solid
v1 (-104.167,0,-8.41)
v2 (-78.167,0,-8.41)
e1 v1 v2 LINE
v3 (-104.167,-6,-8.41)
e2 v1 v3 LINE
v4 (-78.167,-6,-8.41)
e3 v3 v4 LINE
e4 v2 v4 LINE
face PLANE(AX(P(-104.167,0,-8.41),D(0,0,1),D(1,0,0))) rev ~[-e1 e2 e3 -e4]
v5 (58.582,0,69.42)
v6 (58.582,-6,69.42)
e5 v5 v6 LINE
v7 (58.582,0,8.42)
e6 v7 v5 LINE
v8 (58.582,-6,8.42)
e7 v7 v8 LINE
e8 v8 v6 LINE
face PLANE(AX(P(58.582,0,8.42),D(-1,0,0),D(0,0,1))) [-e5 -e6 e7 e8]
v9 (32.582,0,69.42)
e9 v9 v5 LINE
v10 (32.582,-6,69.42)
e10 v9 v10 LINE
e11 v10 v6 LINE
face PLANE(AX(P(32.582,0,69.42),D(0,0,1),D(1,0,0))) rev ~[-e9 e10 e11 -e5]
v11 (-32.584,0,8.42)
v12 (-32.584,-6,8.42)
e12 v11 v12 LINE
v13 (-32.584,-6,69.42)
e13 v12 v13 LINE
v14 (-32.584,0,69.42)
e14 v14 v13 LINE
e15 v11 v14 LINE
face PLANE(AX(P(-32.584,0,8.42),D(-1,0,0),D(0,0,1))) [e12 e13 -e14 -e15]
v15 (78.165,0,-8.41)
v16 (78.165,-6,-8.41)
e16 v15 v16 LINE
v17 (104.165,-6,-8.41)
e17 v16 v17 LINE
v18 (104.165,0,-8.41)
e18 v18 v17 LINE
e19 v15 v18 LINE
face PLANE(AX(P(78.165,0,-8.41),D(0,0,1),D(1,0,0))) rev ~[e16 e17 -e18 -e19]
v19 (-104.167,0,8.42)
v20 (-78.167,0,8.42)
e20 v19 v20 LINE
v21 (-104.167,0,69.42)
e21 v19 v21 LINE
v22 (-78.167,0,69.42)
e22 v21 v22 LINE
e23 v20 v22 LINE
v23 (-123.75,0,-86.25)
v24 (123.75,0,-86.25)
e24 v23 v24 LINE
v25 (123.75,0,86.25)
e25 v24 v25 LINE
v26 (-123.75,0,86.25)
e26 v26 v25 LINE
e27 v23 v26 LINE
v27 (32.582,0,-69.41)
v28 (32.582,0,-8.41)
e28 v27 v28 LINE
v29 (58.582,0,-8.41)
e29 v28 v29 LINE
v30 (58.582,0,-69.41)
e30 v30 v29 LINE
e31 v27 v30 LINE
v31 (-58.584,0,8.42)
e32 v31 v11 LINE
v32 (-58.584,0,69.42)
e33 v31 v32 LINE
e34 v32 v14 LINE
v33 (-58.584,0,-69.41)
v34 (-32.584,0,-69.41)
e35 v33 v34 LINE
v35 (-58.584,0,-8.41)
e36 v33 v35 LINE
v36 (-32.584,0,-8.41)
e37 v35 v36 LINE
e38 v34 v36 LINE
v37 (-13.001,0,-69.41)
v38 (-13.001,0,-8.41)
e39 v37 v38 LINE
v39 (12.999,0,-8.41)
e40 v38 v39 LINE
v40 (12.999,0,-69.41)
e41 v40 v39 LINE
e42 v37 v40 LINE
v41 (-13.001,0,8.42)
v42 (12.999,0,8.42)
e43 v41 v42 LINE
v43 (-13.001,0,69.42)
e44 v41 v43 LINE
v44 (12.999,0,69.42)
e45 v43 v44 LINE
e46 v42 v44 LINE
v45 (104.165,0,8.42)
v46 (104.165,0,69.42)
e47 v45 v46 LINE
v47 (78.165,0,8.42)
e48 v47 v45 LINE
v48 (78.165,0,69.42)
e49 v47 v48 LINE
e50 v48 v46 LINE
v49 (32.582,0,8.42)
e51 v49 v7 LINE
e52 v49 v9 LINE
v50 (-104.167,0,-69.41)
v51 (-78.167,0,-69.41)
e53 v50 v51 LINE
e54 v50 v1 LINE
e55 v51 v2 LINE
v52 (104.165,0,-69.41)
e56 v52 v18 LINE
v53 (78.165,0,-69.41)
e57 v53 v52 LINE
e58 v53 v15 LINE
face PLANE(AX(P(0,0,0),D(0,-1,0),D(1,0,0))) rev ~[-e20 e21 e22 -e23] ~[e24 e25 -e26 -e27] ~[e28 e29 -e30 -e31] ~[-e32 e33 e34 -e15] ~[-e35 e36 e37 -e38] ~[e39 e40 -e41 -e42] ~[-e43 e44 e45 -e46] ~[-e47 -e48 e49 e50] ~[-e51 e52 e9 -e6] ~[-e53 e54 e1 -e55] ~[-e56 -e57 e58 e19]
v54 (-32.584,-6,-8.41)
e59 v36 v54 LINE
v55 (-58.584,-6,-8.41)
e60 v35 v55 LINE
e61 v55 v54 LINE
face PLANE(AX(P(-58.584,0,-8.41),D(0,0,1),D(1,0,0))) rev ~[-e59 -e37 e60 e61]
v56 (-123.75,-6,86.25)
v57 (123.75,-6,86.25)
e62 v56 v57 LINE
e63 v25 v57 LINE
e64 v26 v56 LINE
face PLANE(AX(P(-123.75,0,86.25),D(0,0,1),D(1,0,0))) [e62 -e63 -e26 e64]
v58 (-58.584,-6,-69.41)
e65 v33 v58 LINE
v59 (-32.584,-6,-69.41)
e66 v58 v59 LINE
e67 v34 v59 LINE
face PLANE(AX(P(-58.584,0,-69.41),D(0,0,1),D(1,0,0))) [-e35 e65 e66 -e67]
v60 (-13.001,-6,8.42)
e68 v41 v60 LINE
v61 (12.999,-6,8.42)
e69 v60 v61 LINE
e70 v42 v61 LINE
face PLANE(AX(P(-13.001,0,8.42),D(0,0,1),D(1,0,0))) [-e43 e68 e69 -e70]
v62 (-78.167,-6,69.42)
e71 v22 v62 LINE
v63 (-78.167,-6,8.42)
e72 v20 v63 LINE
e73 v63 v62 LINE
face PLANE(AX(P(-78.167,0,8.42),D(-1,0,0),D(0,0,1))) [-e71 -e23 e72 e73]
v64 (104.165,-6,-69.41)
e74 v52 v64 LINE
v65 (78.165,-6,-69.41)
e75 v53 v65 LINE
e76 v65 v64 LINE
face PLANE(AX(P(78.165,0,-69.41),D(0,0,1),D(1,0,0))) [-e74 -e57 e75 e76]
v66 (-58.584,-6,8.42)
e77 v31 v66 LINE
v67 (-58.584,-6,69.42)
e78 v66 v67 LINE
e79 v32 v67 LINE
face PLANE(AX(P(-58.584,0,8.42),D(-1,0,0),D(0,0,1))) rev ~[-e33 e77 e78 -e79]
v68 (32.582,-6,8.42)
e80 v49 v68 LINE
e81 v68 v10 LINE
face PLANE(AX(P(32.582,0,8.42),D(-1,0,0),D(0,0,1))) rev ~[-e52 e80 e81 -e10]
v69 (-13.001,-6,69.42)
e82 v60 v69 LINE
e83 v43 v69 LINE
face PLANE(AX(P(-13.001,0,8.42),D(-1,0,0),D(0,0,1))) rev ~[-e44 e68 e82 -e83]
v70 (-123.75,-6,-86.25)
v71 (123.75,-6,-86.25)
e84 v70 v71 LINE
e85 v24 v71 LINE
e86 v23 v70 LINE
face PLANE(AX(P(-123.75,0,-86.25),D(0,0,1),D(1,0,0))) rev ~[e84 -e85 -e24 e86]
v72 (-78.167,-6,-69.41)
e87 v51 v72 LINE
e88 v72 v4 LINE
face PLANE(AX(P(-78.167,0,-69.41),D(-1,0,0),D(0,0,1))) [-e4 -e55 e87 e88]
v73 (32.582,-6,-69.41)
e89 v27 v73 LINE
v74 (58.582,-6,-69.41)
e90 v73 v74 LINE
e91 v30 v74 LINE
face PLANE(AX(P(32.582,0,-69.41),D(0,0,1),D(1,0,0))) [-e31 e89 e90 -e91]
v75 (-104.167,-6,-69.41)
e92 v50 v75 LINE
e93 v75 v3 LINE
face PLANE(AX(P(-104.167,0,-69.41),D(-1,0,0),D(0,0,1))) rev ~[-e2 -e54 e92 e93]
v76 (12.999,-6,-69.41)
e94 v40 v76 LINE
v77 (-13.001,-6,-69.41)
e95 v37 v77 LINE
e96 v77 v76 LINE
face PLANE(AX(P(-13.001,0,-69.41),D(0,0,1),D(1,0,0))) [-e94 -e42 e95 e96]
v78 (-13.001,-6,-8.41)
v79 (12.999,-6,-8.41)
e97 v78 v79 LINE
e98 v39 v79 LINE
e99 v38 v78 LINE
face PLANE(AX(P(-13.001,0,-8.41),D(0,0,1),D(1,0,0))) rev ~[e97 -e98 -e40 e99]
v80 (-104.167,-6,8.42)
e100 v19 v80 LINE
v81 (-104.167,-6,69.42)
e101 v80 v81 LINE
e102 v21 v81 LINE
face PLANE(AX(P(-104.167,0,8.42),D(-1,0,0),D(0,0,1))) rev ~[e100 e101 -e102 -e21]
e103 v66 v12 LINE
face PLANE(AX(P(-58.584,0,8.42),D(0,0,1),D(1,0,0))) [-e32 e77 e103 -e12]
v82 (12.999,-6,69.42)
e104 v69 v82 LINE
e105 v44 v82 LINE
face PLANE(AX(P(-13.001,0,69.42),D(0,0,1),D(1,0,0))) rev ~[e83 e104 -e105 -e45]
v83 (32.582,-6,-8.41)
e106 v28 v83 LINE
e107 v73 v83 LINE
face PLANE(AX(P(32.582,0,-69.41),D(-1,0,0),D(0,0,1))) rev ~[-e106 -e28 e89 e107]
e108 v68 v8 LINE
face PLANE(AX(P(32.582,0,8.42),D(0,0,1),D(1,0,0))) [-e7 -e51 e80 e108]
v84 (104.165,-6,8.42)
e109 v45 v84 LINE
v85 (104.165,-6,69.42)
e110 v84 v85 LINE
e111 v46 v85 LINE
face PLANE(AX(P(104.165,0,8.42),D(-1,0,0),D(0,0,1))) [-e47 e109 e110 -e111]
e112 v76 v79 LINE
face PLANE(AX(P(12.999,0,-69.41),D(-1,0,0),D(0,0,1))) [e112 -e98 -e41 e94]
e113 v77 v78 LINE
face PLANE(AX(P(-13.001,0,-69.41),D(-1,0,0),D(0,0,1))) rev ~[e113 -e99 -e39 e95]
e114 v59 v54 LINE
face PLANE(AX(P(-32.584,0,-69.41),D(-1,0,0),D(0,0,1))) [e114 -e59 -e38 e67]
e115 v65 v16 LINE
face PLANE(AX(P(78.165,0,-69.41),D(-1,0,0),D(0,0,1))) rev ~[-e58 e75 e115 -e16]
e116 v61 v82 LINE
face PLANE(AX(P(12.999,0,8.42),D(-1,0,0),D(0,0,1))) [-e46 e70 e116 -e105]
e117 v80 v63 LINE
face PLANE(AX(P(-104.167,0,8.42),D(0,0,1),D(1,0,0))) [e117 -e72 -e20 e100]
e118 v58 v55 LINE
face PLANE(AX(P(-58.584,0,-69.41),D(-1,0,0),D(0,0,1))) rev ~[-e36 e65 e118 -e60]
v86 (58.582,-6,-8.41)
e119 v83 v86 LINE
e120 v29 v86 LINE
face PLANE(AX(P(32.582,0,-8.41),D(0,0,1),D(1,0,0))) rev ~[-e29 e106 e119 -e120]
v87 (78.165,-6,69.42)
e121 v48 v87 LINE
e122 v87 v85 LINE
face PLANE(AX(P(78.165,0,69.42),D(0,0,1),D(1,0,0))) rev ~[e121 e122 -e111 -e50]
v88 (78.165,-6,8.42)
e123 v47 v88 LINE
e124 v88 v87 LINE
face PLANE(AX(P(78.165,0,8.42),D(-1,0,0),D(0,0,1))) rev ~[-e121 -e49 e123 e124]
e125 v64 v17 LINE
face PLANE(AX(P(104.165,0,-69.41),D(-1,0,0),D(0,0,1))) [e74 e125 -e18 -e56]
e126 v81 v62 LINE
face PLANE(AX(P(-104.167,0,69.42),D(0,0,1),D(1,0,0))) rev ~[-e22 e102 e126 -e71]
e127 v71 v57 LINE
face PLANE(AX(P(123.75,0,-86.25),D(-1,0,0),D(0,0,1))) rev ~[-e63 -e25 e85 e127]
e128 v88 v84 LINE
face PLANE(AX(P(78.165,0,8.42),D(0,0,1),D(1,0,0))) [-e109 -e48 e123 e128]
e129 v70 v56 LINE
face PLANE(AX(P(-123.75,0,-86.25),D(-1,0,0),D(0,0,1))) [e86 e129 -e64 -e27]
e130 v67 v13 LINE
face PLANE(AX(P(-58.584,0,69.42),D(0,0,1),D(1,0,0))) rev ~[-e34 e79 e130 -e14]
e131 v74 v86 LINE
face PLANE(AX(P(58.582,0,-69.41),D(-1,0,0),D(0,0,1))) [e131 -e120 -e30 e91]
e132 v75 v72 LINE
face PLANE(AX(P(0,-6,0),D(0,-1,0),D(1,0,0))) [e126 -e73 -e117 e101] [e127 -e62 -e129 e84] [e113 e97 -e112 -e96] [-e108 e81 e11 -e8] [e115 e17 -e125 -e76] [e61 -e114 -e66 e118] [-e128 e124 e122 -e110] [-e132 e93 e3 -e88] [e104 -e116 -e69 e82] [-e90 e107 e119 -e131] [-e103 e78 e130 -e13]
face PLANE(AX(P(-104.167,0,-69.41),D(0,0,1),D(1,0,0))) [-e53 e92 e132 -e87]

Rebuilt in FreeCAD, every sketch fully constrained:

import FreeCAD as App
import Part
import Sketcher
from FreeCAD import Vector

doc = App.newDocument("Part")
body = doc.addObject("PartDesign::Body", "Body")

# Sketch on XZ plane
sketch1 = body.newObject("Sketcher::SketchObject", "Sketch")
sketch1.AttachmentSupport = (doc.getObject("XZ_Plane"), [""])
sketch1.MapMode = "FlatFace"
sketch1.addGeometry(Part.LineSegment(Vector(-124, 86, 0), Vector(-124, -86, 0)), False)
sketch1.addGeometry(Part.LineSegment(Vector(-124, -86, 0), Vector(124, -86, 0)), False)
sketch1.addGeometry(Part.LineSegment(Vector(124, -86, 0), Vector(124, 86, 0)), False)
sketch1.addGeometry(Part.LineSegment(Vector(124, 86, 0), Vector(-124, 86, 0)), False)
sketch1.addGeometry(Part.LineSegment(Vector(-78, -69, 0), Vector(-104, -69, 0)), False)
sketch1.addGeometry(Part.LineSegment(Vector(-104, -69, 0), Vector(-104, -8, 0)), False)
sketch1.addGeometry(Part.LineSegment(Vector(-104, -8, 0), Vector(-78, -8, 0)), False)
sketch1.addGeometry(Part.LineSegment(Vector(-78, -8, 0), Vector(-78, -69, 0)), False)
sketch1.addGeometry(Part.LineSegment(Vector(-33, -69, 0), Vector(-59, -69, 0)), False)
sketch1.addGeometry(Part.LineSegment(Vector(-59, -69, 0), Vector(-59, -8, 0)), False)
sketch1.addGeometry(Part.LineSegment(Vector(-59, -8, 0), Vector(-33, -8, 0)), False)
sketch1.addGeometry(Part.LineSegment(Vector(-33, -8, 0), Vector(-33, -69, 0)), False)
sketch1.addGeometry(Part.LineSegment(Vector(13, -69, 0), Vector(-13, -69, 0)), False)
sketch1.addGeometry(Part.LineSegment(Vector(-13, -69, 0), Vector(-13, -8, 0)), False)
sketch1.addGeometry(Part.LineSegment(Vector(-13, -8, 0), Vector(13, -8, 0)), False)
sketch1.addGeometry(Part.LineSegment(Vector(13, -8, 0), Vector(13, -69, 0)), False)
sketch1.addGeometry(Part.LineSegment(Vector(59, -69, 0), Vector(33, -69, 0)), False)
sketch1.addGeometry(Part.LineSegment(Vector(33, -69, 0), Vector(33, -8, 0)), False)
sketch1.addGeometry(Part.LineSegment(Vector(33, -8, 0), Vector(59, -8, 0)), False)
sketch1.addGeometry(Part.LineSegment(Vector(59, -8, 0), Vector(59, -69, 0)), False)
sketch1.addGeometry(Part.LineSegment(Vector(104, -69, 0), Vector(78, -69, 0)), False)
sketch1.addGeometry(Part.LineSegment(Vector(78, -69, 0), Vector(78, -8, 0)), False)
sketch1.addGeometry(Part.LineSegment(Vector(78, -8, 0), Vector(104, -8, 0)), False)
sketch1.addGeometry(Part.LineSegment(Vector(104, -8, 0), Vector(104, -69, 0)), False)
sketch1.addGeometry(Part.LineSegment(Vector(-78, 8, 0), Vector(-104, 8, 0)), False)
sketch1.addGeometry(Part.LineSegment(Vector(-104, 8, 0), Vector(-104, 69, 0)), False)
sketch1.addGeometry(Part.LineSegment(Vector(-104, 69, 0), Vector(-78, 69, 0)), False)
sketch1.addGeometry(Part.LineSegment(Vector(-78, 69, 0), Vector(-78, 8, 0)), False)
sketch1.addGeometry(Part.LineSegment(Vector(-33, 8, 0), Vector(-59, 8, 0)), False)
sketch1.addGeometry(Part.LineSegment(Vector(-59, 8, 0), Vector(-59, 69, 0)), False)
sketch1.addGeometry(Part.LineSegment(Vector(-59, 69, 0), Vector(-33, 69, 0)), False)
sketch1.addGeometry(Part.LineSegment(Vector(-33, 69, 0), Vector(-33, 8, 0)), False)
sketch1.addGeometry(Part.LineSegment(Vector(13, 8, 0), Vector(-13, 8, 0)), False)
sketch1.addGeometry(Part.LineSegment(Vector(-13, 8, 0), Vector(-13, 69, 0)), False)
sketch1.addGeometry(Part.LineSegment(Vector(-13, 69, 0), Vector(13, 69, 0)), False)
sketch1.addGeometry(Part.LineSegment(Vector(13, 69, 0), Vector(13, 8, 0)), False)
sketch1.addGeometry(Part.LineSegment(Vector(59, 8, 0), Vector(33, 8, 0)), False)
sketch1.addGeometry(Part.LineSegment(Vector(33, 8, 0), Vector(33, 69, 0)), False)
sketch1.addGeometry(Part.LineSegment(Vector(33, 69, 0), Vector(59, 69, 0)), False)
sketch1.addGeometry(Part.LineSegment(Vector(59, 69, 0), Vector(59, 8, 0)), False)
sketch1.addGeometry(Part.LineSegment(Vector(104, 8, 0), Vector(78, 8, 0)), False)
sketch1.addGeometry(Part.LineSegment(Vector(78, 8, 0), Vector(78, 69, 0)), False)
sketch1.addGeometry(Part.LineSegment(Vector(78, 69, 0), Vector(104, 69, 0)), False)
sketch1.addGeometry(Part.LineSegment(Vector(104, 69, 0), Vector(104, 8, 0)), False)
sketch1.addConstraint(Sketcher.Constraint("Coincident", 0, 2, 1, 1))
sketch1.addConstraint(Sketcher.Constraint("Coincident", 1, 2, 2, 1))
sketch1.addConstraint(Sketcher.Constraint("Coincident", 2, 2, 3, 1))
sketch1.addConstraint(Sketcher.Constraint("Coincident", 3, 2, 0, 1))
sketch1.addConstraint(Sketcher.Constraint("Coincident", 4, 2, 5, 1))
sketch1.addConstraint(Sketcher.Constraint("Coincident", 5, 2, 6, 1))
sketch1.addConstraint(Sketcher.Constraint("Coincident", 6, 2, 7, 1))
sketch1.addConstraint(Sketcher.Constraint("Coincident", 7, 2, 4, 1))
sketch1.addConstraint(Sketcher.Constraint("Coincident", 8, 2, 9, 1))
sketch1.addConstraint(Sketcher.Constraint("Coincident", 9, 2, 10, 1))
sketch1.addConstraint(Sketcher.Constraint("Coincident", 10, 2, 11, 1))
sketch1.addConstraint(Sketcher.Constraint("Coincident", 11, 2, 8, 1))
sketch1.addConstraint(Sketcher.Constraint("Coincident", 12, 2, 13, 1))
sketch1.addConstraint(Sketcher.Constraint("Coincident", 13, 2, 14, 1))
sketch1.addConstraint(Sketcher.Constraint("Coincident", 14, 2, 15, 1))
sketch1.addConstraint(Sketcher.Constraint("Coincident", 15, 2, 12, 1))
sketch1.addConstraint(Sketcher.Constraint("Coincident", 16, 2, 17, 1))
sketch1.addConstraint(Sketcher.Constraint("Coincident", 17, 2, 18, 1))
sketch1.addConstraint(Sketcher.Constraint("Coincident", 18, 2, 19, 1))
sketch1.addConstraint(Sketcher.Constraint("Coincident", 19, 2, 16, 1))
sketch1.addConstraint(Sketcher.Constraint("Coincident", 20, 2, 21, 1))
sketch1.addConstraint(Sketcher.Constraint("Coincident", 21, 2, 22, 1))
sketch1.addConstraint(Sketcher.Constraint("Coincident", 22, 2, 23, 1))
sketch1.addConstraint(Sketcher.Constraint("Coincident", 23, 2, 20, 1))
sketch1.addConstraint(Sketcher.Constraint("Coincident", 24, 2, 25, 1))
sketch1.addConstraint(Sketcher.Constraint("Coincident", 25, 2, 26, 1))
sketch1.addConstraint(Sketcher.Constraint("Coincident", 26, 2, 27, 1))
sketch1.addConstraint(Sketcher.Constraint("Coincident", 27, 2, 24, 1))
sketch1.addConstraint(Sketcher.Constraint("Coincident", 28, 2, 29, 1))
sketch1.addConstraint(Sketcher.Constraint("Coincident", 29, 2, 30, 1))
sketch1.addConstraint(Sketcher.Constraint("Coincident", 30, 2, 31, 1))
sketch1.addConstraint(Sketcher.Constraint("Coincident", 31, 2, 28, 1))
sketch1.addConstraint(Sketcher.Constraint("Coincident", 32, 2, 33, 1))
sketch1.addConstraint(Sketcher.Constraint("Coincident", 33, 2, 34, 1))
sketch1.addConstraint(Sketcher.Constraint("Coincident", 34, 2, 35, 1))
sketch1.addConstraint(Sketcher.Constraint("Coincident", 35, 2, 32, 1))
sketch1.addConstraint(Sketcher.Constraint("Coincident", 36, 2, 37, 1))
sketch1.addConstraint(Sketcher.Constraint("Coincident", 37, 2, 38, 1))
sketch1.addConstraint(Sketcher.Constraint("Coincident", 38, 2, 39, 1))
sketch1.addConstraint(Sketcher.Constraint("Coincident", 39, 2, 36, 1))
sketch1.addConstraint(Sketcher.Constraint("Coincident", 40, 2, 41, 1))
sketch1.addConstraint(Sketcher.Constraint("Coincident", 41, 2, 42, 1))
sketch1.addConstraint(Sketcher.Constraint("Coincident", 42, 2, 43, 1))
sketch1.addConstraint(Sketcher.Constraint("Coincident", 43, 2, 40, 1))
sketch1.addConstraint(Sketcher.Constraint("Vertical", 0))
sketch1.addConstraint(Sketcher.Constraint("Horizontal", 1))
sketch1.addConstraint(Sketcher.Constraint("Vertical", 2))
sketch1.addConstraint(Sketcher.Constraint("Horizontal", 3))
sketch1.addConstraint(Sketcher.Constraint("Horizontal", 4))
sketch1.addConstraint(Sketcher.Constraint("Vertical", 5))
sketch1.addConstraint(Sketcher.Constraint("Horizontal", 6))
sketch1.addConstraint(Sketcher.Constraint("Vertical", 7))
sketch1.addConstraint(Sketcher.Constraint("Horizontal", 8))
sketch1.addConstraint(Sketcher.Constraint("Vertical", 9))
sketch1.addConstraint(Sketcher.Constraint("Horizontal", 10))
sketch1.addConstraint(Sketcher.Constraint("Vertical", 11))
sketch1.addConstraint(Sketcher.Constraint("Horizontal", 12))
sketch1.addConstraint(Sketcher.Constraint("Vertical", 13))
sketch1.addConstraint(Sketcher.Constraint("Horizontal", 14))
sketch1.addConstraint(Sketcher.Constraint("Vertical", 15))
sketch1.addConstraint(Sketcher.Constraint("Horizontal", 16))
sketch1.addConstraint(Sketcher.Constraint("Vertical", 17))
sketch1.addConstraint(Sketcher.Constraint("Horizontal", 18))
sketch1.addConstraint(Sketcher.Constraint("Vertical", 19))
sketch1.addConstraint(Sketcher.Constraint("Horizontal", 20))
sketch1.addConstraint(Sketcher.Constraint("Vertical", 21))
sketch1.addConstraint(Sketcher.Constraint("Horizontal", 22))
sketch1.addConstraint(Sketcher.Constraint("Vertical", 23))
sketch1.addConstraint(Sketcher.Constraint("Horizontal", 24))
sketch1.addConstraint(Sketcher.Constraint("Vertical", 25))
sketch1.addConstraint(Sketcher.Constraint("Horizontal", 26))
sketch1.addConstraint(Sketcher.Constraint("Vertical", 27))
sketch1.addConstraint(Sketcher.Constraint("Horizontal", 28))
sketch1.addConstraint(Sketcher.Constraint("Vertical", 29))
sketch1.addConstraint(Sketcher.Constraint("Horizontal", 30))
sketch1.addConstraint(Sketcher.Constraint("Vertical", 31))
sketch1.addConstraint(Sketcher.Constraint("Horizontal", 32))
sketch1.addConstraint(Sketcher.Constraint("Vertical", 33))
sketch1.addConstraint(Sketcher.Constraint("Horizontal", 34))
sketch1.addConstraint(Sketcher.Constraint("Vertical", 35))
sketch1.addConstraint(Sketcher.Constraint("Horizontal", 36))
sketch1.addConstraint(Sketcher.Constraint("Vertical", 37))
sketch1.addConstraint(Sketcher.Constraint("Horizontal", 38))
sketch1.addConstraint(Sketcher.Constraint("Vertical", 39))
sketch1.addConstraint(Sketcher.Constraint("Horizontal", 40))
sketch1.addConstraint(Sketcher.Constraint("Vertical", 41))
sketch1.addConstraint(Sketcher.Constraint("Horizontal", 42))
sketch1.addConstraint(Sketcher.Constraint("Vertical", 43))
sketch1.addConstraint(Sketcher.Constraint("Symmetric", 0, 2, 2, 2, -1, 1))
sketch1.addConstraint(Sketcher.Constraint("Horizontal", 7, 2, 8, 2))
sketch1.addConstraint(Sketcher.Constraint("Horizontal", 6, 2, 9, 2))
sketch1.addConstraint(Sketcher.Constraint("Horizontal", 11, 2, 12, 2))
sketch1.addConstraint(Sketcher.Constraint("Horizontal", 10, 2, 13, 2))
sketch1.addConstraint(Sketcher.Constraint("Horizontal", 15, 2, 16, 2))
sketch1.addConstraint(Sketcher.Constraint("Horizontal", 14, 2, 17, 2))
sketch1.addConstraint(Sketcher.Constraint("Horizontal", 19, 2, 20, 2))
sketch1.addConstraint(Sketcher.Constraint("Horizontal", 18, 2, 21, 2))
sketch1.addConstraint(Sketcher.Constraint("Horizontal", 27, 2, 28, 2))
sketch1.addConstraint(Sketcher.Constraint("Horizontal", 26, 2, 29, 2))
sketch1.addConstraint(Sketcher.Constraint("Horizontal", 31, 2, 32, 2))
sketch1.addConstraint(Sketcher.Constraint("Horizontal", 30, 2, 33, 2))
sketch1.addConstraint(Sketcher.Constraint("Horizontal", 35, 2, 36, 2))
sketch1.addConstraint(Sketcher.Constraint("Horizontal", 34, 2, 37, 2))
sketch1.addConstraint(Sketcher.Constraint("Horizontal", 39, 2, 40, 2))
sketch1.addConstraint(Sketcher.Constraint("Horizontal", 38, 2, 41, 2))
sketch1.addConstraint(Sketcher.Constraint("Vertical", 5, 2, 24, 2))
sketch1.addConstraint(Sketcher.Constraint("Vertical", 7, 2, 26, 2))
sketch1.addConstraint(Sketcher.Constraint("Vertical", 9, 2, 28, 2))
sketch1.addConstraint(Sketcher.Constraint("Vertical", 11, 2, 30, 2))
sketch1.addConstraint(Sketcher.Constraint("Vertical", 13, 2, 32, 2))
sketch1.addConstraint(Sketcher.Constraint("Vertical", 15, 2, 34, 2))
sketch1.addConstraint(Sketcher.Constraint("Vertical", 17, 2, 36, 2))
sketch1.addConstraint(Sketcher.Constraint("Vertical", 19, 2, 38, 2))
sketch1.addConstraint(Sketcher.Constraint("Vertical", 21, 2, 40, 2))
sketch1.addConstraint(Sketcher.Constraint("Vertical", 23, 2, 42, 2))
sketch1.addConstraint(Sketcher.Constraint("Equal", 6, 8))
sketch1.addConstraint(Sketcher.Constraint("Equal", 10, 12))
sketch1.addConstraint(Sketcher.Constraint("Equal", 14, 16))
sketch1.addConstraint(Sketcher.Constraint("Equal", 18, 20))
sketch1.addConstraint(Sketcher.Constraint("Equal", 23, 25))
sketch1.addConstraint(Sketcher.Constraint("DistanceX", 4, 2, 4, 1, 26.0))
sketch1.addConstraint(Sketcher.Constraint("DistanceY", 5, 1, 5, 2, 61.0))
sketch1.addConstraint(Sketcher.Constraint("DistanceX", 1, 1, 1, 2, 247.5))
sketch1.addConstraint(Sketcher.Constraint("DistanceY", 0, 2, 0, 1, 172.5))
sketch1.addConstraint(Sketcher.Constraint("DistanceY", 4, 2, -1, 1, 69.41))
sketch1.addConstraint(Sketcher.Constraint("DistanceY", -1, 1, 24, 2, 8.42))
sketch1.addConstraint(Sketcher.Constraint("DistanceX", 4, 2, -1, 1, 104.167))
sketch1.addConstraint(Sketcher.Constraint("DistanceX", 8, 2, -1, 1, 58.584))
sketch1.addConstraint(Sketcher.Constraint("DistanceX", 12, 2, -1, 1, 13.001))
sketch1.addConstraint(Sketcher.Constraint("DistanceX", -1, 1, 16, 2, 32.582))
sketch1.addConstraint(Sketcher.Constraint("DistanceX", -1, 1, 20, 2, 78.165))
pad1 = body.newObject("PartDesign::Pad", "Pad")
pad1.Profile = sketch1
pad1.Length = 6

doc.recompute()
